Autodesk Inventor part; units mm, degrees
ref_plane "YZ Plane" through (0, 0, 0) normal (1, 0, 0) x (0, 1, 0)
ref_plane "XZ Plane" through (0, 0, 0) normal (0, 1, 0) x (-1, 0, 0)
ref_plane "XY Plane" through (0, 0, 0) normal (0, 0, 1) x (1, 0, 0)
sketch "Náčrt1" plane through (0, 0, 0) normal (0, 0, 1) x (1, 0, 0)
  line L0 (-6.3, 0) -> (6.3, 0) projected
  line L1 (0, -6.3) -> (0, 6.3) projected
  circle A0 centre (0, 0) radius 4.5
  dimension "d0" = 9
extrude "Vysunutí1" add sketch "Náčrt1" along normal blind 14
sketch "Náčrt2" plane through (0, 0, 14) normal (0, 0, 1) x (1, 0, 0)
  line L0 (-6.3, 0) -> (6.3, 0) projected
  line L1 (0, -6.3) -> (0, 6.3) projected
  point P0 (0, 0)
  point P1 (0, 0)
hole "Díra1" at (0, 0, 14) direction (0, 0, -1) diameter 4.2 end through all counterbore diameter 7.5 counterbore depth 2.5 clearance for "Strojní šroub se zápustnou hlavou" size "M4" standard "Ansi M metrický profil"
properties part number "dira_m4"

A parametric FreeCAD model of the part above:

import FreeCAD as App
import Part
import Sketcher
from FreeCAD import Vector

doc = App.newDocument("Part")
params = doc.addObject("Spreadsheet::Sheet", "Params")
for row, (alias, value) in enumerate([
    ("sketch1_diameter", "9 mm"),
    ("pad1_length", "14 mm"),
    ("sketch2_diameter", "4.2 mm"),
    ("hole_diameter", "4.2 mm"),
    ("hole_cbore_diameter", "7.5 mm"),
    ("hole_cbore_depth", "2.5 mm"),
], start=1):
    params.set(f"A{row}", alias)
    params.set(f"B{row}", "=" + value)
    params.setAlias(f"B{row}", alias)

body = doc.addObject("PartDesign::Body", "Body")

sketch1 = body.newObject("Sketcher::SketchObject", "Sketch")
sketch1.AttachmentSupport = (doc.getObject("XY_Plane"), [""])
sketch1.MapMode = "FlatFace"
sketch1.addGeometry(Part.Circle(Vector(0, 0, 0), Vector(0, 0, 1), 4.5), False)
sketch1.addConstraint(Sketcher.Constraint("Coincident", 0, 3, -1, 1))
sketch1.addConstraint(Sketcher.Constraint("Diameter", 0, 9.0))
sketch1.setExpression("Constraints[1]", "Params.sketch1_diameter")
pad1 = body.newObject("PartDesign::Pad", "Pad")
pad1.Profile = sketch1
pad1.setExpression("Length", "Params.pad1_length")

sketch2 = body.newObject("Sketcher::SketchObject", "Sketch001")
sketch2.AttachmentSupport = (doc.getObject("XY_Plane"), [""])
sketch2.MapMode = "FlatFace"
sketch2.AttachmentOffset = App.Placement(Vector(0, 0, 14), App.Rotation())
sketch2.addGeometry(Part.Circle(Vector(0, 0, 0), Vector(0, 0, 1), 2.1), False)
sketch2.addConstraint(Sketcher.Constraint("Coincident", 0, 3, -1, 1))
sketch2.addConstraint(Sketcher.Constraint("Diameter", 0, 4.2))
sketch2.setExpression("Constraints[1]", "Params.sketch2_diameter")
doc.recompute()
hole = body.newObject("PartDesign::Hole", "Hole")
hole.Profile = sketch2
hole.ThreadType = "None"
hole.setExpression("Diameter", "Params.hole_diameter")
hole.DepthType = "ThroughAll"
hole.HoleCutType = "Counterbore"
hole.setExpression("HoleCutDiameter", "Params.hole_cbore_diameter")
hole.setExpression("HoleCutDepth", "Params.hole_cbore_depth")

doc.recompute()
